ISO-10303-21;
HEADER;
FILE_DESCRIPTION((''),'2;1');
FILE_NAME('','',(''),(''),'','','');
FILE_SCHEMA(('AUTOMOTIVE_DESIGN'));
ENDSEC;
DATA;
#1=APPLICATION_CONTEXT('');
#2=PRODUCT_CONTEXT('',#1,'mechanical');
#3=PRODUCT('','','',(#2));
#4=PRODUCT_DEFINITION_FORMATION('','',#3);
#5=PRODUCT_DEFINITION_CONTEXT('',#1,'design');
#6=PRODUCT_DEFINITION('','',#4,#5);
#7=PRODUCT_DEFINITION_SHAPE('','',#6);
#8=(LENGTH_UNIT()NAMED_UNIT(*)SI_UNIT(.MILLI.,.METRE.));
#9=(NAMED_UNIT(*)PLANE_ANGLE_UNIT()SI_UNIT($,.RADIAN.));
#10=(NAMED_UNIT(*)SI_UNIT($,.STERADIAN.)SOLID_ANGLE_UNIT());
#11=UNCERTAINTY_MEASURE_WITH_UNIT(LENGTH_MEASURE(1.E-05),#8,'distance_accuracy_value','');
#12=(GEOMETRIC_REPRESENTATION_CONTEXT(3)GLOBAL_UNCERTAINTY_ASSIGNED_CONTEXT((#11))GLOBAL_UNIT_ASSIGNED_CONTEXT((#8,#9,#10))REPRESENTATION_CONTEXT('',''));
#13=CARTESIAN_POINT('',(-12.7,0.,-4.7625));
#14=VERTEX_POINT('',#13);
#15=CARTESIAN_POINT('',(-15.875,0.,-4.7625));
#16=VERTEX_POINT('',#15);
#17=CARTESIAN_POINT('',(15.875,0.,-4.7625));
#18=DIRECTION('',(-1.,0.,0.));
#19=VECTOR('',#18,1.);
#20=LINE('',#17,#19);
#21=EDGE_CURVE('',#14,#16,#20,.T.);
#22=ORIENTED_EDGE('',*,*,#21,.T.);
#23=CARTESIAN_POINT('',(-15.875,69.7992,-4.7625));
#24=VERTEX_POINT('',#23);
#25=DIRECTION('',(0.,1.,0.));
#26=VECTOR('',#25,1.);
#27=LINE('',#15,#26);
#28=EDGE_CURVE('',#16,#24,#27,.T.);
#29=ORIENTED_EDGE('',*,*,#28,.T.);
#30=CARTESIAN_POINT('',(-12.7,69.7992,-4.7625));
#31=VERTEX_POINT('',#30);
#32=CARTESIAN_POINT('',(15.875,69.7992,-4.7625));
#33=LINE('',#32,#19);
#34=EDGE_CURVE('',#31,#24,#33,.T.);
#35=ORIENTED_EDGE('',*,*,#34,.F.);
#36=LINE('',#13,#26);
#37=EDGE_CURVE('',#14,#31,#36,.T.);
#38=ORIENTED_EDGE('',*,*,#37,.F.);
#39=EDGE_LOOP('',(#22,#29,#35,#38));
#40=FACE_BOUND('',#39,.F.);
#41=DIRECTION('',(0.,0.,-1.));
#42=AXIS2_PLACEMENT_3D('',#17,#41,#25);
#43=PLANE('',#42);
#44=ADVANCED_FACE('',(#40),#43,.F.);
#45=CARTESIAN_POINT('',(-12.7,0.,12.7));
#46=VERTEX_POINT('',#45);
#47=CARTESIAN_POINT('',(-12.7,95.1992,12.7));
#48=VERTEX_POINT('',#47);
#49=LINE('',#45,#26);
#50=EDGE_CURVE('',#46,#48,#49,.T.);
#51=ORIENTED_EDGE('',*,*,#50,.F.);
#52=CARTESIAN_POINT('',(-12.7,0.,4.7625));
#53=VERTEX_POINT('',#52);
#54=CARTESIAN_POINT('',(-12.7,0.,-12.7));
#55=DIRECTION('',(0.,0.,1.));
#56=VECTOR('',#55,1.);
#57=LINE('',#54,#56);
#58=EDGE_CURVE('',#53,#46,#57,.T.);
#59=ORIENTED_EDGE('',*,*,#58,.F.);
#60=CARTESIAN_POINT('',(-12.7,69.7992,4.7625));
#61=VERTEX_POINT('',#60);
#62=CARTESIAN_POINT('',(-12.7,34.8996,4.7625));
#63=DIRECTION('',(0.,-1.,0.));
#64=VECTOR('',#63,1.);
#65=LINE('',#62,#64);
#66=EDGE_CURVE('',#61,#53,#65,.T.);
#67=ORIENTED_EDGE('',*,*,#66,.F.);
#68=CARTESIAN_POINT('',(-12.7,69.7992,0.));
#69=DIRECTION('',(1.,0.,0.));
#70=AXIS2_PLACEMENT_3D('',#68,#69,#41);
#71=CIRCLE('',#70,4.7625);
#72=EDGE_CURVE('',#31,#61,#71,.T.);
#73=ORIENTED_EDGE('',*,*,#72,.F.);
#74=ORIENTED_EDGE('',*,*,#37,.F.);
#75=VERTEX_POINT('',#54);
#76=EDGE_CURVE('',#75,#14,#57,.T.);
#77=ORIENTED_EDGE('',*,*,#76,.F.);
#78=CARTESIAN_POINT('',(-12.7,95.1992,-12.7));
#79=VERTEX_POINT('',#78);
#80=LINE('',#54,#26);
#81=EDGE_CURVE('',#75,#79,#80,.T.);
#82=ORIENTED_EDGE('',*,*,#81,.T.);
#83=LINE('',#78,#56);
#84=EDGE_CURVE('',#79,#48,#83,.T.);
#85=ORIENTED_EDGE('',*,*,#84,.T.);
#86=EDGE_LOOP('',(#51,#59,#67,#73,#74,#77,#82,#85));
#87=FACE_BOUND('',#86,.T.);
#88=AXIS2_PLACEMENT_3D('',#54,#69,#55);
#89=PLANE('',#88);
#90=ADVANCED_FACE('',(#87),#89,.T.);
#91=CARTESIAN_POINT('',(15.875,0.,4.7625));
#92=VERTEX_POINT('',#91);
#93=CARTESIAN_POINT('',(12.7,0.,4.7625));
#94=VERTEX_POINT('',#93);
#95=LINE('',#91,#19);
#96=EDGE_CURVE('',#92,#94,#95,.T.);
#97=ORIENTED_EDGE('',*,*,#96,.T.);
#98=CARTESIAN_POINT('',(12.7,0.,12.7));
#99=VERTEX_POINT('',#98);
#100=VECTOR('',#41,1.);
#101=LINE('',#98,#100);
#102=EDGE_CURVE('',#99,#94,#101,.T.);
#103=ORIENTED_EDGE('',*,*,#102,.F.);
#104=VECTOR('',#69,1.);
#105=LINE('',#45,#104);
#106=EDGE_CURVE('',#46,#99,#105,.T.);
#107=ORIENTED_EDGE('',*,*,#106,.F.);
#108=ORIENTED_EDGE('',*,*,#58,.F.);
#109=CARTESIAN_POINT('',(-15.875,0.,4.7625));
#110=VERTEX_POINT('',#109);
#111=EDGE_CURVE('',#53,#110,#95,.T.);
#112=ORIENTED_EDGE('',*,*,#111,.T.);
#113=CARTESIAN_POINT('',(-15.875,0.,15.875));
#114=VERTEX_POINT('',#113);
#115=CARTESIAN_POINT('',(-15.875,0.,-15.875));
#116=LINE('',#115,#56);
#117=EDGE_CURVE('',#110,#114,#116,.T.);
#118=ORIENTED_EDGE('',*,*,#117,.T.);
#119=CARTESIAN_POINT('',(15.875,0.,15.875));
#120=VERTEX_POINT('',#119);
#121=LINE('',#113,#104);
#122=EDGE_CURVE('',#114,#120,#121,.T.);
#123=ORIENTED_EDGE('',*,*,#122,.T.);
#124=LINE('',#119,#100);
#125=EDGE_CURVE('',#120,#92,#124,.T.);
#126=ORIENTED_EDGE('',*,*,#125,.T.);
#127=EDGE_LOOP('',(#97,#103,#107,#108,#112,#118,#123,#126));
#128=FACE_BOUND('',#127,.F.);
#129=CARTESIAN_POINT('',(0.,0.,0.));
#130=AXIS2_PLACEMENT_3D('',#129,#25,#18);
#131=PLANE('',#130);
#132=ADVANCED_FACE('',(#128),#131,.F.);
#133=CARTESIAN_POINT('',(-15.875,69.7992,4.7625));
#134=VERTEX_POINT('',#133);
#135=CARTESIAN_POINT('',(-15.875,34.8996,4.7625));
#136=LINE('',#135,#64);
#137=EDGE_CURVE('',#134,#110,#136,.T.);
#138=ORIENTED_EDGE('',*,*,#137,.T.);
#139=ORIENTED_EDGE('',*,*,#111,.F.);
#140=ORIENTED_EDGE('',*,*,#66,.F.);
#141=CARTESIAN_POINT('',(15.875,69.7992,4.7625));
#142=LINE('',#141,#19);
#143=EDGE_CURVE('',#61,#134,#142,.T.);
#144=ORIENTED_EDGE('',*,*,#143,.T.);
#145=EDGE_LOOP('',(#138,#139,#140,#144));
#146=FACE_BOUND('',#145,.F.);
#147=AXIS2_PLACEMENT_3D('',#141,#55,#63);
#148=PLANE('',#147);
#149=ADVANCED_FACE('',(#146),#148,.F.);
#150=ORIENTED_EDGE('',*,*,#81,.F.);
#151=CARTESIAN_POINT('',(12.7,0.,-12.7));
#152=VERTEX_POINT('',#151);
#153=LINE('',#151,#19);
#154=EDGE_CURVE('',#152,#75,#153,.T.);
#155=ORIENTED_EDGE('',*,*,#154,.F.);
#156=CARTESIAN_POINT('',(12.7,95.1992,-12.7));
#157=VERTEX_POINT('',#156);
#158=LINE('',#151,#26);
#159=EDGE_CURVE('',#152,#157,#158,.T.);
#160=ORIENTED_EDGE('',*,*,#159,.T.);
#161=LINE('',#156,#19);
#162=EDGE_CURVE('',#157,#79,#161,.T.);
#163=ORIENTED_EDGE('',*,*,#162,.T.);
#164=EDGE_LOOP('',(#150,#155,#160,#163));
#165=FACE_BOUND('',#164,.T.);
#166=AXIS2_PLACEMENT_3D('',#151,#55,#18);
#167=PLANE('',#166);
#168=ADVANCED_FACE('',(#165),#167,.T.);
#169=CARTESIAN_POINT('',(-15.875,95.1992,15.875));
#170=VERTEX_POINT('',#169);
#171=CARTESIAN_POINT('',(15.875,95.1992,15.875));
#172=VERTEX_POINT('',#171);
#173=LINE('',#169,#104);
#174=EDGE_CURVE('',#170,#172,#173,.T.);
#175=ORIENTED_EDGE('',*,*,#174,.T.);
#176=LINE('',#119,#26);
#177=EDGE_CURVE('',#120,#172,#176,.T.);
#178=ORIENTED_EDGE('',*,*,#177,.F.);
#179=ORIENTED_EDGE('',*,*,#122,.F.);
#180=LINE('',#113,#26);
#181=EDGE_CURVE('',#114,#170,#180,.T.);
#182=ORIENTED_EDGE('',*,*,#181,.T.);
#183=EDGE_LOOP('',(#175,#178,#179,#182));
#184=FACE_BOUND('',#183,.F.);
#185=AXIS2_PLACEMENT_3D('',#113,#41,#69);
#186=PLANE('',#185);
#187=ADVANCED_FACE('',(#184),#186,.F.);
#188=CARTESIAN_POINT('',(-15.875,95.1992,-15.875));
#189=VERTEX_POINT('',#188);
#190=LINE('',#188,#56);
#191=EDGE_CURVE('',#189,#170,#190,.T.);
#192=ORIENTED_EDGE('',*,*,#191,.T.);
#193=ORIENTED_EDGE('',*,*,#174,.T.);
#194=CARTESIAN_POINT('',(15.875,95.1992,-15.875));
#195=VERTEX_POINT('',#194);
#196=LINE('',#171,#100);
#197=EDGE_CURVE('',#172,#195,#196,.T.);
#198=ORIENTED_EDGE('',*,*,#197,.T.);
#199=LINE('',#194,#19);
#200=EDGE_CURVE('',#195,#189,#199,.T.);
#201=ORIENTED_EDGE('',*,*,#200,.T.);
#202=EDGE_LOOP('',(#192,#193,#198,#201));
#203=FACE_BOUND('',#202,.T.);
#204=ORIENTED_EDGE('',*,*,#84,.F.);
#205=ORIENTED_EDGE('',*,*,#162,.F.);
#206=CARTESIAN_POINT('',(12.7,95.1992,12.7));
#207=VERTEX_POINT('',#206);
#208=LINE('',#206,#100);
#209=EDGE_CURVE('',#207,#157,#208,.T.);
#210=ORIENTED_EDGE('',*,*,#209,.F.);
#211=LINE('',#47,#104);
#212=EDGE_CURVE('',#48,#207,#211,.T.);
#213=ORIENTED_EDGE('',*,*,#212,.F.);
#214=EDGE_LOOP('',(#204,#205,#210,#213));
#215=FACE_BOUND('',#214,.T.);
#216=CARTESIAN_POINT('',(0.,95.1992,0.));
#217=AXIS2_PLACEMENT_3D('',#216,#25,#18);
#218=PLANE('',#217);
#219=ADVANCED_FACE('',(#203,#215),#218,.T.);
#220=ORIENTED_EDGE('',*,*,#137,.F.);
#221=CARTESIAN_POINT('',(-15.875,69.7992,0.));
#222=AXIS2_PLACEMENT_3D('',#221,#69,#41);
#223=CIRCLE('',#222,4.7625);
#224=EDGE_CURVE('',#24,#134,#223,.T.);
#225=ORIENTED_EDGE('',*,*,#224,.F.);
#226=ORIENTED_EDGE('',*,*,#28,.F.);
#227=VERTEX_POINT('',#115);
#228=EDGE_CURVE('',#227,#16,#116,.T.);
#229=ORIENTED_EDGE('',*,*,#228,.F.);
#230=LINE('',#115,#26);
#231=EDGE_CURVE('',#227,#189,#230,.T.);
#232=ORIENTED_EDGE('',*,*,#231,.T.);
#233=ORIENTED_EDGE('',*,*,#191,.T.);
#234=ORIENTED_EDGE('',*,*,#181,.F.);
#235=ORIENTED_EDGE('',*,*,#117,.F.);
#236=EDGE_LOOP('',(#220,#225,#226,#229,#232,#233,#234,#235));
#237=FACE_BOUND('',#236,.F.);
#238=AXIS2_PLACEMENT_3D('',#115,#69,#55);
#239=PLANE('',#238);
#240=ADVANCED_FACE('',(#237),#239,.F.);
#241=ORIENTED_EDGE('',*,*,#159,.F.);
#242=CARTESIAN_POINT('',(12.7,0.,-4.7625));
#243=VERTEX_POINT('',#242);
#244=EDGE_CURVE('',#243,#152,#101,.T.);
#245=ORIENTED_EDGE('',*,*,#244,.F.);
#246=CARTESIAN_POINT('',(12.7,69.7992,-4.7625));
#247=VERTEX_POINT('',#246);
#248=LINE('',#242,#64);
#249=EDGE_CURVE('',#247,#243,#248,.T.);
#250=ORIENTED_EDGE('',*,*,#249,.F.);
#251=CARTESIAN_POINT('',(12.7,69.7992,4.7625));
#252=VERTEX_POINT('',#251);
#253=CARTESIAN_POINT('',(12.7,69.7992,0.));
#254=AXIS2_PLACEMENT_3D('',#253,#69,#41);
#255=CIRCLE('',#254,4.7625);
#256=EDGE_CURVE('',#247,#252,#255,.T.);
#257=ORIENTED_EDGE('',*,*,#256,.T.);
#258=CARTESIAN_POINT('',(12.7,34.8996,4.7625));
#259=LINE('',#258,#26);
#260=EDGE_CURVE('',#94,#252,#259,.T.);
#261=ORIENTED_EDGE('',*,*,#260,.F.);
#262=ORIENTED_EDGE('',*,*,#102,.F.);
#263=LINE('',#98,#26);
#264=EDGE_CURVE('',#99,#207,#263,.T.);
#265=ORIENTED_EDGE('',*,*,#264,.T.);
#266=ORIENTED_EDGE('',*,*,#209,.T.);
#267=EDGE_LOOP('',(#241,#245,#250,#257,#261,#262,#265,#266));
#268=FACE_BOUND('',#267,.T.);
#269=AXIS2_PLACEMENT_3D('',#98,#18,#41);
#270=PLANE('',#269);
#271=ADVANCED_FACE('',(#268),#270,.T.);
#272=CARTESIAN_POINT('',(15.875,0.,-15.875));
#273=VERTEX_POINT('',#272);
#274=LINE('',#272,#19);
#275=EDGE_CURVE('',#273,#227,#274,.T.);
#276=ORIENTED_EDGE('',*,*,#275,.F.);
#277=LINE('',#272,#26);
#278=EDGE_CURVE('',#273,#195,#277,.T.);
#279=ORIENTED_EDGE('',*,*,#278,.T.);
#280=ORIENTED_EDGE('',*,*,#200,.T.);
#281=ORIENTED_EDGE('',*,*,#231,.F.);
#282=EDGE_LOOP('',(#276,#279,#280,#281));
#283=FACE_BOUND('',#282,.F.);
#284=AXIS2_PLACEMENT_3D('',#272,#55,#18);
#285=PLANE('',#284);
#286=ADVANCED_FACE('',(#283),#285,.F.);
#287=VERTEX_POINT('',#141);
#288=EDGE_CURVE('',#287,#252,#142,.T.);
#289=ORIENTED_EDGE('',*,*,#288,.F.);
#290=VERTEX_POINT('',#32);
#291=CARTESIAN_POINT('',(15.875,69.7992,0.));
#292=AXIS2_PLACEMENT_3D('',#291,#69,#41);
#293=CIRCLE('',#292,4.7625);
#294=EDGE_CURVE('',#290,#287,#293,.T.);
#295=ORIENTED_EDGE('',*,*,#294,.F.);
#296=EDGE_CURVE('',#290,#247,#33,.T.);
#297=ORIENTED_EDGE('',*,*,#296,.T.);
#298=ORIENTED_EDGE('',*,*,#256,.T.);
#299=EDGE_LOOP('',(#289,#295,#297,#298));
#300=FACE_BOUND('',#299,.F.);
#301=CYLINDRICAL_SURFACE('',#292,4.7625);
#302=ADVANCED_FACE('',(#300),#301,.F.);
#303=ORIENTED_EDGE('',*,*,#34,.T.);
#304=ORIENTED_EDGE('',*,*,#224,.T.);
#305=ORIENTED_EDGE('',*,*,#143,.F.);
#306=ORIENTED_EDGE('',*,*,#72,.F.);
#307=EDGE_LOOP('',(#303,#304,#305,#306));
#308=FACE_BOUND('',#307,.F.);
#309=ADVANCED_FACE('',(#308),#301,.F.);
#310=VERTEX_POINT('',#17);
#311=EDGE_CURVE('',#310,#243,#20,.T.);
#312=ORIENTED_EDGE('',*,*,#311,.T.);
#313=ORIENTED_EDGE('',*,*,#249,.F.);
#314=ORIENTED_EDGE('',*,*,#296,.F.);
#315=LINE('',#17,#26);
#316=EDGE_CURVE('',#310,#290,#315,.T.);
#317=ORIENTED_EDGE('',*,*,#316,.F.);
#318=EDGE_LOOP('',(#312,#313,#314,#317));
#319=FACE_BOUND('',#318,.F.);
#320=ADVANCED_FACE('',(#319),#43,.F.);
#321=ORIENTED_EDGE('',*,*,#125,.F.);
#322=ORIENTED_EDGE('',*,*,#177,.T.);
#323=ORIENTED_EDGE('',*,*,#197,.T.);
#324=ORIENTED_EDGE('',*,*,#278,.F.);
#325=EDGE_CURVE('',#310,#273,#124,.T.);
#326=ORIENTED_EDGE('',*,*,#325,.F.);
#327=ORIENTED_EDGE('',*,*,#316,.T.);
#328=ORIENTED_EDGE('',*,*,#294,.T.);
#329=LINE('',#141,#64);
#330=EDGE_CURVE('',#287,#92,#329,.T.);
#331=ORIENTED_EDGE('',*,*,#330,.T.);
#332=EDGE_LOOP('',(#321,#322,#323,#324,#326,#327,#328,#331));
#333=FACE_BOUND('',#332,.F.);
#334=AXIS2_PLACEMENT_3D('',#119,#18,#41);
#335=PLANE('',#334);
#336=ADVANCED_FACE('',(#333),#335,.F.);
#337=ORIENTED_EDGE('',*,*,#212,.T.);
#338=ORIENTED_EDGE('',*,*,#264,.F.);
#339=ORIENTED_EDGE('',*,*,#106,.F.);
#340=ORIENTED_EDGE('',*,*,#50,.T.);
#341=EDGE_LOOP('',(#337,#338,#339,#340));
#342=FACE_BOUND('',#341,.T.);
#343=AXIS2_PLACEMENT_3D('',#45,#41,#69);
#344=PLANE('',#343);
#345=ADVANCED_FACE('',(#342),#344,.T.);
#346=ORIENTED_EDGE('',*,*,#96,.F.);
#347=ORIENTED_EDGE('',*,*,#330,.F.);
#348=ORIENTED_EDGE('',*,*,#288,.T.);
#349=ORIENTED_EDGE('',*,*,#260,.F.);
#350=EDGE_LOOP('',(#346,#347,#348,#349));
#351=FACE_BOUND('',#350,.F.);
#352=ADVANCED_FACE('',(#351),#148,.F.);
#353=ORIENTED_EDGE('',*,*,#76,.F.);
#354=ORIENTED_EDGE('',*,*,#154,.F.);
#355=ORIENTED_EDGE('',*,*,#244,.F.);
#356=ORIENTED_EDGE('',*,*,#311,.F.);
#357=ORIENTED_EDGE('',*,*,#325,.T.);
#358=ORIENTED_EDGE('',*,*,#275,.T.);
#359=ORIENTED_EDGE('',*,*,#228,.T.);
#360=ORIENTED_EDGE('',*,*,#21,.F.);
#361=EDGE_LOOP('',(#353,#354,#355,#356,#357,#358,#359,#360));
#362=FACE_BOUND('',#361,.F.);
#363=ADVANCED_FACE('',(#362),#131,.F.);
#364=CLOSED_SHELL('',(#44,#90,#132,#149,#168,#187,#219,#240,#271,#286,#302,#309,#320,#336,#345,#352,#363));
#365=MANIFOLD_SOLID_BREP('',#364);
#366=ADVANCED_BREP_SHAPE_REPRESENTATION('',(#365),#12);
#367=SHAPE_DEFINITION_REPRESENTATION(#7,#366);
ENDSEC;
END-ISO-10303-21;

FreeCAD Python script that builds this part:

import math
import FreeCAD as App
import Part
import Sketcher

V = App.Vector
Q = App.Units.Quantity

doc = App.newDocument("Part")
body = doc.addObject("PartDesign::Body", "Body")

# Sketch on XZ plane
sketch1 = body.newObject("Sketcher::SketchObject", "Sketch")
sketch1.AttachmentSupport = (doc.getObject("XZ_Plane"), [""])
sketch1.MapMode = "FlatFace"
sketch1.addGeometry([
    Part.LineSegment(V(-16, -16, 0), V(-16, 16, 0)),  # 0
    Part.LineSegment(V(-16, 16, 0), V(16, 16, 0)),  # 1
    Part.LineSegment(V(16, 16, 0), V(16, -16, 0)),  # 2
    Part.LineSegment(V(16, -16, 0), V(-16, -16, 0)),  # 3
    Part.LineSegment(V(13, 13, 0), V(-13, 13, 0)),  # 4
    Part.LineSegment(V(-13, 13, 0), V(-13, -13, 0)),  # 5
    Part.LineSegment(V(-13, -13, 0), V(13, -13, 0)),  # 6
    Part.LineSegment(V(13, -13, 0), V(13, 13, 0)),  # 7
], False)
sketch1.addConstraint([
    Sketcher.Constraint("Coincident", 0, 2, 1, 1),
    Sketcher.Constraint("Coincident", 1, 2, 2, 1),
    Sketcher.Constraint("Coincident", 2, 2, 3, 1),
    Sketcher.Constraint("Coincident", 3, 2, 0, 1),
    Sketcher.Constraint("Coincident", 4, 2, 5, 1),
    Sketcher.Constraint("Coincident", 5, 2, 6, 1),
    Sketcher.Constraint("Coincident", 6, 2, 7, 1),
    Sketcher.Constraint("Coincident", 7, 2, 4, 1),
    Sketcher.Constraint("Vertical", 0),
    Sketcher.Constraint("Horizontal", 1),
    Sketcher.Constraint("Vertical", 2),
    Sketcher.Constraint("Horizontal", 3),
    Sketcher.Constraint("Horizontal", 4),
    Sketcher.Constraint("Vertical", 5),
    Sketcher.Constraint("Horizontal", 6),
    Sketcher.Constraint("Vertical", 7),
    Sketcher.Constraint("Symmetric", 0, 2, 2, 2, -1, 1),
    Sketcher.Constraint("Symmetric", 4, 2, 6, 2, -1, 1),
    Sketcher.Constraint("Equal", 3, 0),
    Sketcher.Constraint("Equal", 6, 5),
    Sketcher.Constraint("DistanceX", 4, 2, 4, 1, Q("1 in")),
    Sketcher.Constraint("DistanceX", 0, 2, 4, 2, Q("0.125 in")),
])
pad1 = body.newObject("PartDesign::Pad", "Pad")
pad1.Profile = sketch1
pad1.Length = Q("3.748 in")
pad1.Reversed = True

# Sketch on YZ plane
sketch2 = body.newObject("Sketcher::SketchObject", "Sketch001")
sketch2.AttachmentSupport = (doc.getObject("YZ_Plane"), [""])
sketch2.MapMode = "FlatFace"
sketch2.AttachmentOffset = App.Placement(V(0, 0, 0.625 * 25.4), App.Rotation())
sketch2.addGeometry([
    Part.LineSegment(V(69.8, 4.8, 0), V(0, 4.8, 0)),
    Part.ArcOfCircle(Part.Circle(V(0, 0, 0), V(0, 0, 1), 4.8), math.radians(90), math.radians(270)),
    Part.LineSegment(V(0, -4.8, 0), V(69.8, -4.8, 0)),
    Part.ArcOfCircle(Part.Circle(V(69.8, 0, 0), V(0, 0, 1), 4.8), math.radians(-90), math.radians(90)),
], False)
sketch2.addConstraint([
    Sketcher.Constraint("Tangent", 0, 2, 1, 1),
    Sketcher.Constraint("Tangent", 1, 2, 2, 1),
    Sketcher.Constraint("Tangent", 2, 2, 3, 1),
    Sketcher.Constraint("Tangent", 3, 2, 0, 1),
    Sketcher.Constraint("Horizontal", 0),
    Sketcher.Constraint("Horizontal", 2),
    Sketcher.Constraint("Coincident", 1, 3, -1, 1),
    Sketcher.Constraint("Radius", 1, Q("0.1875 in")),
    Sketcher.Constraint("DistanceX", 0, 2, 0, 1, Q("2.748 in")),
])
pocket1 = body.newObject("PartDesign::Pocket", "Pocket")
pocket1.Profile = sketch2
pocket1.Type = "ThroughAll"

doc.recompute()
